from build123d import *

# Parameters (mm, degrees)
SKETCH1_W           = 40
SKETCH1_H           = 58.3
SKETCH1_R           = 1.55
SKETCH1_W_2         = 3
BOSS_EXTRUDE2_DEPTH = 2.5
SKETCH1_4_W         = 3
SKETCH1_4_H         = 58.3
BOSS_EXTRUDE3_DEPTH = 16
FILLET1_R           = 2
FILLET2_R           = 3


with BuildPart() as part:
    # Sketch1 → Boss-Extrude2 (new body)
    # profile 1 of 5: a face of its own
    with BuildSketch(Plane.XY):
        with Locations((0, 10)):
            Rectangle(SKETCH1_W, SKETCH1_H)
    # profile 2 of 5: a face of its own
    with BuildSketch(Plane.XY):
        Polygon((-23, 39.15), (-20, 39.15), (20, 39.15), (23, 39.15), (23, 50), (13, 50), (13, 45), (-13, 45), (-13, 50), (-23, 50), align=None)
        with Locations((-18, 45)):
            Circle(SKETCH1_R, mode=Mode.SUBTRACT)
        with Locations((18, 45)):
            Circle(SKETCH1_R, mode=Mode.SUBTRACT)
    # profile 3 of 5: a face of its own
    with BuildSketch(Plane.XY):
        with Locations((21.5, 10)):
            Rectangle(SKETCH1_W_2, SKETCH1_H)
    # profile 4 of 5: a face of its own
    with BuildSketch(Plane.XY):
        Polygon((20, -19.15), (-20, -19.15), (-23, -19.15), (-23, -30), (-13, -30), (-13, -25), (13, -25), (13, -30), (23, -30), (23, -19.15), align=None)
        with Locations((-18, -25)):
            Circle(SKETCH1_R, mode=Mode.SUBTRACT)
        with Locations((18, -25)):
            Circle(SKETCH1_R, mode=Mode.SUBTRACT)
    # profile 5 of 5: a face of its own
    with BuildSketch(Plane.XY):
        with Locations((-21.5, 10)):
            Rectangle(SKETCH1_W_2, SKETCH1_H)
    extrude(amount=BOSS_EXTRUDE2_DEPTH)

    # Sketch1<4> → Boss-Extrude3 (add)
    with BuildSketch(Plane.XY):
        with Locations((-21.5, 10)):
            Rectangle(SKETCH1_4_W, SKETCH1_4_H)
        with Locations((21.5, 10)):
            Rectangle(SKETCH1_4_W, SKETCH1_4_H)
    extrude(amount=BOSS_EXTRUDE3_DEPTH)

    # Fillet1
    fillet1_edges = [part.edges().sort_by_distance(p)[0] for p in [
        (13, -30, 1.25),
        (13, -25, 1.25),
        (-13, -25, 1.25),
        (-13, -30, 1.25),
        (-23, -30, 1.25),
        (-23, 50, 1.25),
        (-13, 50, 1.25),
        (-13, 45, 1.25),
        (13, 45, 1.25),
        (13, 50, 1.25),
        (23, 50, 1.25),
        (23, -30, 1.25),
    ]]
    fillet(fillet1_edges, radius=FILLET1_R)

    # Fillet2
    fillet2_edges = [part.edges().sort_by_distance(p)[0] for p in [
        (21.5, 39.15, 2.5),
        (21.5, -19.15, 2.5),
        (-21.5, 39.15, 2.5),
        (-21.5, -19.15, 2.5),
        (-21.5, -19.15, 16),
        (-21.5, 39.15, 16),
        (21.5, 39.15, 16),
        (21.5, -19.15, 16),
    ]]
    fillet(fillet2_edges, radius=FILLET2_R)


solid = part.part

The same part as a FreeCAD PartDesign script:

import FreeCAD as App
import Part
import Sketcher
from FreeCAD import Vector


def edges_at(feature, points):
    """Names of the edges that pass closest to the given points."""
    edges = feature.Shape.Edges
    near = lambda p: min(range(len(edges)), key=lambda i: edges[i].distToShape(Part.Vertex(*p))[0])
    return sorted({f"Edge{near(p) + 1}" for p in points})

doc = App.newDocument("Part")
body = doc.addObject("PartDesign::Body", "Body")

# Sketch on XY plane
sketch1 = doc.addObject("Sketcher::SketchObject", "Sketch")
body.addObject(sketch1)
sketch1.AttachmentSupport = (doc.XY_Plane, [""])
sketch1.MapMode = "FlatFace"
sketch1.addGeometry(Part.LineSegment(Vector(-23, -30, 0), Vector(-13, -30, 0)), False)
sketch1.addGeometry(Part.LineSegment(Vector(-13, -30, 0), Vector(-13, -25, 0)), False)
sketch1.addGeometry(Part.LineSegment(Vector(-13, -25, 0), Vector(13, -25, 0)), False)
sketch1.addGeometry(Part.LineSegment(Vector(13, -25, 0), Vector(13, -30, 0)), False)
sketch1.addGeometry(Part.LineSegment(Vector(13, -30, 0), Vector(23, -30, 0)), False)
sketch1.addGeometry(Part.LineSegment(Vector(23, -30, 0), Vector(23, 50, 0)), False)
sketch1.addGeometry(Part.LineSegment(Vector(23, 50, 0), Vector(13, 50, 0)), False)
sketch1.addGeometry(Part.LineSegment(Vector(13, 50, 0), Vector(13, 45, 0)), False)
sketch1.addGeometry(Part.LineSegment(Vector(13, 45, 0), Vector(-13, 45, 0)), False)
sketch1.addGeometry(Part.LineSegment(Vector(-13, 45, 0), Vector(-13, 50, 0)), False)
sketch1.addGeometry(Part.LineSegment(Vector(-13, 50, 0), Vector(-23, 50, 0)), False)
sketch1.addGeometry(Part.LineSegment(Vector(-23, 50, 0), Vector(-23, -30, 0)), False)
sketch1.addGeometry(Part.Circle(Vector(18, -25, 0), Vector(0, 0, 1), 1.6), False)
sketch1.addGeometry(Part.Circle(Vector(-18, -25, 0), Vector(0, 0, 1), 1.6), False)
sketch1.addGeometry(Part.Circle(Vector(-18, 45, 0), Vector(0, 0, 1), 1.6), False)
sketch1.addGeometry(Part.Circle(Vector(18, 45, 0), Vector(0, 0, 1), 1.6), False)
sketch1.addConstraint(Sketcher.Constraint("Coincident", 0, 2, 1, 1))
sketch1.addConstraint(Sketcher.Constraint("Coincident", 1, 2, 2, 1))
sketch1.addConstraint(Sketcher.Constraint("Coincident", 2, 2, 3, 1))
sketch1.addConstraint(Sketcher.Constraint("Coincident", 3, 2, 4, 1))
sketch1.addConstraint(Sketcher.Constraint("Coincident", 4, 2, 5, 1))
sketch1.addConstraint(Sketcher.Constraint("Coincident", 5, 2, 6, 1))
sketch1.addConstraint(Sketcher.Constraint("Coincident", 6, 2, 7, 1))
sketch1.addConstraint(Sketcher.Constraint("Coincident", 7, 2, 8, 1))
sketch1.addConstraint(Sketcher.Constraint("Coincident", 8, 2, 9, 1))
sketch1.addConstraint(Sketcher.Constraint("Coincident", 9, 2, 10, 1))
sketch1.addConstraint(Sketcher.Constraint("Coincident", 10, 2, 11, 1))
sketch1.addConstraint(Sketcher.Constraint("Coincident", 11, 2, 0, 1))
sketch1.addConstraint(Sketcher.Constraint("Horizontal", 0))
sketch1.addConstraint(Sketcher.Constraint("Vertical", 1))
sketch1.addConstraint(Sketcher.Constraint("Horizontal", 2))
sketch1.addConstraint(Sketcher.Constraint("Vertical", 3))
sketch1.addConstraint(Sketcher.Constraint("Horizontal", 4))
sketch1.addConstraint(Sketcher.Constraint("Vertical", 5))
sketch1.addConstraint(Sketcher.Constraint("Horizontal", 6))
sketch1.addConstraint(Sketcher.Constraint("Vertical", 7))
sketch1.addConstraint(Sketcher.Constraint("Horizontal", 8))
sketch1.addConstraint(Sketcher.Constraint("Vertical", 9))
sketch1.addConstraint(Sketcher.Constraint("Horizontal", 10))
sketch1.addConstraint(Sketcher.Constraint("Vertical", 11))
sketch1.addConstraint(Sketcher.Constraint("Equal", 12, 13))
sketch1.addConstraint(Sketcher.Constraint("Equal", 13, 14))
sketch1.addConstraint(Sketcher.Constraint("Equal", 14, 15))
sketch1.addConstraint(Sketcher.Constraint("Symmetric", 12, 3, 13, 3, -2))
sketch1.addConstraint(Sketcher.Constraint("Symmetric", 14, 3, 15, 3, -2))
sketch1.addConstraint(Sketcher.Constraint("Symmetric", 0, 2, 3, 2, -2))
sketch1.addConstraint(Sketcher.Constraint("Symmetric", 6, 2, 9, 2, -2))
sketch1.addConstraint(Sketcher.Constraint("Horizontal", 13, 3, 1, 2))
sketch1.addConstraint(Sketcher.Constraint("Horizontal", 15, 3, 7, 2))
sketch1.addConstraint(Sketcher.Constraint("Vertical", 13, 3, 14, 3))
sketch1.addConstraint(Sketcher.Constraint("Vertical", 3, 2, 6, 2))
sketch1.addConstraint(Sketcher.Constraint("Equal", 0, 4))
sketch1.addConstraint(Sketcher.Constraint("Equal", 3, 7))
sketch1.addConstraint(Sketcher.Constraint("Diameter", 12, 3.1))
sketch1.addConstraint(Sketcher.Constraint("DistanceX", 0, 1, 0, 2, 10.0))
sketch1.addConstraint(Sketcher.Constraint("DistanceX", 2, 1, 2, 2, 26.0))
sketch1.addConstraint(Sketcher.Constraint("DistanceY", 1, 1, 1, 2, 5.0))
sketch1.addConstraint(Sketcher.Constraint("DistanceY", 5, 1, 5, 2, 80.0))
sketch1.addConstraint(Sketcher.Constraint("DistanceX", -1, 1, 12, 3, 18.0))
sketch1.addConstraint(Sketcher.Constraint("DistanceY", 12, 3, -1, 1, 25.0))
pad1 = doc.addObject("PartDesign::Pad", "Pad")
body.addObject(pad1)
pad1.Profile = sketch1
pad1.Length = 2.5

# Sketch on XY plane
sketch2 = doc.addObject("Sketcher::SketchObject", "Sketch001")
body.addObject(sketch2)
sketch2.AttachmentSupport = (doc.XY_Plane, [""])
sketch2.MapMode = "FlatFace"
sketch2.addGeometry(Part.LineSegment(Vector(-23, 39.1, 0), Vector(-23, -19.1, 0)), False)
sketch2.addGeometry(Part.LineSegment(Vector(-23, -19.1, 0), Vector(-20, -19.1, 0)), False)
sketch2.addGeometry(Part.LineSegment(Vector(-20, -19.1, 0), Vector(-20, 39.1, 0)), False)
sketch2.addGeometry(Part.LineSegment(Vector(-20, 39.1, 0), Vector(-23, 39.1, 0)), False)
sketch2.addGeometry(Part.LineSegment(Vector(20, 39.1, 0), Vector(20, -19.1, 0)), False)
sketch2.addGeometry(Part.LineSegment(Vector(20, -19.1, 0), Vector(23, -19.1, 0)), False)
sketch2.addGeometry(Part.LineSegment(Vector(23, -19.1, 0), Vector(23, 39.1, 0)), False)
sketch2.addGeometry(Part.LineSegment(Vector(23, 39.1, 0), Vector(20, 39.1, 0)), False)
sketch2.addConstraint(Sketcher.Constraint("Coincident", 0, 2, 1, 1))
sketch2.addConstraint(Sketcher.Constraint("Coincident", 1, 2, 2, 1))
sketch2.addConstraint(Sketcher.Constraint("Coincident", 2, 2, 3, 1))
sketch2.addConstraint(Sketcher.Constraint("Coincident", 3, 2, 0, 1))
sketch2.addConstraint(Sketcher.Constraint("Coincident", 4, 2, 5, 1))
sketch2.addConstraint(Sketcher.Constraint("Coincident", 5, 2, 6, 1))
sketch2.addConstraint(Sketcher.Constraint("Coincident", 6, 2, 7, 1))
sketch2.addConstraint(Sketcher.Constraint("Coincident", 7, 2, 4, 1))
sketch2.addConstraint(Sketcher.Constraint("Vertical", 0))
sketch2.addConstraint(Sketcher.Constraint("Horizontal", 1))
sketch2.addConstraint(Sketcher.Constraint("Vertical", 2))
sketch2.addConstraint(Sketcher.Constraint("Horizontal", 3))
sketch2.addConstraint(Sketcher.Constraint("Vertical", 4))
sketch2.addConstraint(Sketcher.Constraint("Horizontal", 5))
sketch2.addConstraint(Sketcher.Constraint("Vertical", 6))
sketch2.addConstraint(Sketcher.Constraint("Horizontal", 7))
sketch2.addConstraint(Sketcher.Constraint("Symmetric", 1, 2, 4, 2, -2))
sketch2.addConstraint(Sketcher.Constraint("Symmetric", 3, 2, 6, 2, -2))
sketch2.addConstraint(Sketcher.Constraint("DistanceX", 1, 1, 1, 2, 3.0))
sketch2.addConstraint(Sketcher.Constraint("DistanceY", 0, 2, 0, 1, 58.3))
sketch2.addConstraint(Sketcher.Constraint("DistanceX", 0, 2, -1, 1, 23.0))
sketch2.addConstraint(Sketcher.Constraint("DistanceY", 0, 2, -1, 1, 19.15))
pad2 = doc.addObject("PartDesign::Pad", "Pad001")
body.addObject(pad2)
pad2.Profile = sketch2
pad2.Length = 16
doc.recompute()

fillet = doc.addObject("PartDesign::Fillet", "Fillet")
body.addObject(fillet)
fillet.Base = (pad2, edges_at(pad2, [
    (13, -30, 1.25),
    (13, -25, 1.25),
    (-13, -25, 1.25),
    (-13, -30, 1.25),
    (-23, -30, 1.25),
    (-23, 50, 1.25),
    (-13, 50, 1.25),
    (-13, 45, 1.25),
    (13, 45, 1.25),
    (13, 50, 1.25),
    (23, 50, 1.25),
    (23, -30, 1.25),
]))
fillet.Radius = 2
doc.recompute()

fillet2 = doc.addObject("PartDesign::Fillet", "Fillet001")
body.addObject(fillet2)
fillet2.Base = (fillet, edges_at(fillet, [
    (21.5, 39.15, 2.5),
    (21.5, -19.15, 2.5),
    (-21.5, 39.15, 2.5),
    (-21.5, -19.15, 2.5),
    (-21.5, -19.15, 16),
    (-21.5, 39.15, 16),
    (21.5, 39.15, 16),
    (21.5, -19.15, 16),
]))
fillet2.Radius = 3

doc.recompute()
